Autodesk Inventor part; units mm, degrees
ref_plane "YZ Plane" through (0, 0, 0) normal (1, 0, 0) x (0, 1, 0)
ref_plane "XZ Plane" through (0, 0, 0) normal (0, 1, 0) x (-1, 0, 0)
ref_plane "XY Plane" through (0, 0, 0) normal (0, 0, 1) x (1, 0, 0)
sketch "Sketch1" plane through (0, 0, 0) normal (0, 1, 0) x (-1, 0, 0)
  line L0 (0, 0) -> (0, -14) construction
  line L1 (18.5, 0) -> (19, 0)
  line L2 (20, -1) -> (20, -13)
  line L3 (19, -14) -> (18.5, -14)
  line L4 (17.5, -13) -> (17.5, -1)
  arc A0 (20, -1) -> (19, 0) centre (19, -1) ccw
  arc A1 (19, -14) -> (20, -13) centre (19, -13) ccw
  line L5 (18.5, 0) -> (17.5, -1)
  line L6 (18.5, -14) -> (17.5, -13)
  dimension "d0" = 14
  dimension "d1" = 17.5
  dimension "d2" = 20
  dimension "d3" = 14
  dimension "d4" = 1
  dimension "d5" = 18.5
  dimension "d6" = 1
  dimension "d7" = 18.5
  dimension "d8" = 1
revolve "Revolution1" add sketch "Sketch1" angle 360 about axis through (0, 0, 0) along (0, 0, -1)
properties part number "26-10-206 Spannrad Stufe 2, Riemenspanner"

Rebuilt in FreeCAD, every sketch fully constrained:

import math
import FreeCAD as App
import Part
import Sketcher
from FreeCAD import Vector
Q = App.Units.Quantity

doc = App.newDocument("Part")
params = doc.addObject("Spreadsheet::Sheet", "Params")
for row, (alias, value) in enumerate([
    ("sketch1_radius", "1 mm"),
    ("revolution_angle", "360 deg"),
], start=1):
    params.set(f"A{row}", alias)
    params.set(f"B{row}", "=" + value)
    params.setAlias(f"B{row}", alias)

body = doc.addObject("PartDesign::Body", "Body")

# Sketch on XZ plane
sketch1 = body.newObject("Sketcher::SketchObject", "Sketch")
sketch1.AttachmentSupport = (doc.getObject("XZ_Plane"), [""])
sketch1.MapMode = "FlatFace"
sketch1.addGeometry([
    Part.LineSegment(Vector(-19, 0, 0), Vector(-18.5, 0, 0)),  # 0
    Part.LineSegment(Vector(-18.5, 0, 0), Vector(-17.5, -1, 0)),  # 1
    Part.LineSegment(Vector(-17.5, -1, 0), Vector(-17.5, -13, 0)),  # 2
    Part.LineSegment(Vector(-17.5, -13, 0), Vector(-18.5, -14, 0)),  # 3
    Part.LineSegment(Vector(-18.5, -14, 0), Vector(-19, -14, 0)),  # 4
    Part.ArcOfCircle(Part.Circle(Vector(-19, -13, 0), Vector(0, 0, 1), 1), math.radians(180), math.radians(270)),  # 5
    Part.LineSegment(Vector(-20, -13, 0), Vector(-20, -1, 0)),  # 6
    Part.ArcOfCircle(Part.Circle(Vector(-19, -1, 0), Vector(0, 0, 1), 1), math.radians(90), math.radians(180)),  # 7
], False)
sketch1.addConstraint([
    Sketcher.Constraint("Coincident", 0, 2, 1, 1),
    Sketcher.Constraint("Coincident", 1, 2, 2, 1),
    Sketcher.Constraint("Coincident", 2, 2, 3, 1),
    Sketcher.Constraint("Coincident", 3, 2, 4, 1),
    Sketcher.Constraint("Tangent", 4, 2, 5, 2),
    Sketcher.Constraint("Tangent", 5, 1, 6, 1),
    Sketcher.Constraint("Tangent", 6, 2, 7, 2),
    Sketcher.Constraint("Tangent", 7, 1, 0, 1),
    Sketcher.Constraint("Horizontal", 0),
    Sketcher.Constraint("Vertical", 2),
    Sketcher.Constraint("Horizontal", 4),
    Sketcher.Constraint("Vertical", 6),
    Sketcher.Constraint("Equal", 5, 7),
    Sketcher.Constraint("PointOnObject", 0, 2, -1),
    Sketcher.Constraint("Perpendicular", 1, 3),
    Sketcher.Constraint("Horizontal", 7, 3, 1, 2),
    Sketcher.Constraint("Horizontal", 5, 3, 2, 2),
    Sketcher.Constraint("Vertical", 0, 2, 3, 2),
    Sketcher.Constraint("Radius", 5, Q("1 mm")),
    Sketcher.Constraint("DistanceY", 3, 2, -1, 1, Q("14 mm")),
    Sketcher.Constraint("DistanceX", 5, 1, -1, 1, Q("20 mm")),
    Sketcher.Constraint("DistanceX", 0, 2, -1, 1, Q("18.5 mm")),
])
sketch1.setExpression("Constraints[18]", "Params.sketch1_radius")
revolution = body.newObject("PartDesign::Revolution", "Revolution")
revolution.Profile = sketch1
revolution.ReferenceAxis = (sketch1, ["V_Axis"])
revolution.setExpression("Angle", "Params.revolution_angle")

doc.recompute()
